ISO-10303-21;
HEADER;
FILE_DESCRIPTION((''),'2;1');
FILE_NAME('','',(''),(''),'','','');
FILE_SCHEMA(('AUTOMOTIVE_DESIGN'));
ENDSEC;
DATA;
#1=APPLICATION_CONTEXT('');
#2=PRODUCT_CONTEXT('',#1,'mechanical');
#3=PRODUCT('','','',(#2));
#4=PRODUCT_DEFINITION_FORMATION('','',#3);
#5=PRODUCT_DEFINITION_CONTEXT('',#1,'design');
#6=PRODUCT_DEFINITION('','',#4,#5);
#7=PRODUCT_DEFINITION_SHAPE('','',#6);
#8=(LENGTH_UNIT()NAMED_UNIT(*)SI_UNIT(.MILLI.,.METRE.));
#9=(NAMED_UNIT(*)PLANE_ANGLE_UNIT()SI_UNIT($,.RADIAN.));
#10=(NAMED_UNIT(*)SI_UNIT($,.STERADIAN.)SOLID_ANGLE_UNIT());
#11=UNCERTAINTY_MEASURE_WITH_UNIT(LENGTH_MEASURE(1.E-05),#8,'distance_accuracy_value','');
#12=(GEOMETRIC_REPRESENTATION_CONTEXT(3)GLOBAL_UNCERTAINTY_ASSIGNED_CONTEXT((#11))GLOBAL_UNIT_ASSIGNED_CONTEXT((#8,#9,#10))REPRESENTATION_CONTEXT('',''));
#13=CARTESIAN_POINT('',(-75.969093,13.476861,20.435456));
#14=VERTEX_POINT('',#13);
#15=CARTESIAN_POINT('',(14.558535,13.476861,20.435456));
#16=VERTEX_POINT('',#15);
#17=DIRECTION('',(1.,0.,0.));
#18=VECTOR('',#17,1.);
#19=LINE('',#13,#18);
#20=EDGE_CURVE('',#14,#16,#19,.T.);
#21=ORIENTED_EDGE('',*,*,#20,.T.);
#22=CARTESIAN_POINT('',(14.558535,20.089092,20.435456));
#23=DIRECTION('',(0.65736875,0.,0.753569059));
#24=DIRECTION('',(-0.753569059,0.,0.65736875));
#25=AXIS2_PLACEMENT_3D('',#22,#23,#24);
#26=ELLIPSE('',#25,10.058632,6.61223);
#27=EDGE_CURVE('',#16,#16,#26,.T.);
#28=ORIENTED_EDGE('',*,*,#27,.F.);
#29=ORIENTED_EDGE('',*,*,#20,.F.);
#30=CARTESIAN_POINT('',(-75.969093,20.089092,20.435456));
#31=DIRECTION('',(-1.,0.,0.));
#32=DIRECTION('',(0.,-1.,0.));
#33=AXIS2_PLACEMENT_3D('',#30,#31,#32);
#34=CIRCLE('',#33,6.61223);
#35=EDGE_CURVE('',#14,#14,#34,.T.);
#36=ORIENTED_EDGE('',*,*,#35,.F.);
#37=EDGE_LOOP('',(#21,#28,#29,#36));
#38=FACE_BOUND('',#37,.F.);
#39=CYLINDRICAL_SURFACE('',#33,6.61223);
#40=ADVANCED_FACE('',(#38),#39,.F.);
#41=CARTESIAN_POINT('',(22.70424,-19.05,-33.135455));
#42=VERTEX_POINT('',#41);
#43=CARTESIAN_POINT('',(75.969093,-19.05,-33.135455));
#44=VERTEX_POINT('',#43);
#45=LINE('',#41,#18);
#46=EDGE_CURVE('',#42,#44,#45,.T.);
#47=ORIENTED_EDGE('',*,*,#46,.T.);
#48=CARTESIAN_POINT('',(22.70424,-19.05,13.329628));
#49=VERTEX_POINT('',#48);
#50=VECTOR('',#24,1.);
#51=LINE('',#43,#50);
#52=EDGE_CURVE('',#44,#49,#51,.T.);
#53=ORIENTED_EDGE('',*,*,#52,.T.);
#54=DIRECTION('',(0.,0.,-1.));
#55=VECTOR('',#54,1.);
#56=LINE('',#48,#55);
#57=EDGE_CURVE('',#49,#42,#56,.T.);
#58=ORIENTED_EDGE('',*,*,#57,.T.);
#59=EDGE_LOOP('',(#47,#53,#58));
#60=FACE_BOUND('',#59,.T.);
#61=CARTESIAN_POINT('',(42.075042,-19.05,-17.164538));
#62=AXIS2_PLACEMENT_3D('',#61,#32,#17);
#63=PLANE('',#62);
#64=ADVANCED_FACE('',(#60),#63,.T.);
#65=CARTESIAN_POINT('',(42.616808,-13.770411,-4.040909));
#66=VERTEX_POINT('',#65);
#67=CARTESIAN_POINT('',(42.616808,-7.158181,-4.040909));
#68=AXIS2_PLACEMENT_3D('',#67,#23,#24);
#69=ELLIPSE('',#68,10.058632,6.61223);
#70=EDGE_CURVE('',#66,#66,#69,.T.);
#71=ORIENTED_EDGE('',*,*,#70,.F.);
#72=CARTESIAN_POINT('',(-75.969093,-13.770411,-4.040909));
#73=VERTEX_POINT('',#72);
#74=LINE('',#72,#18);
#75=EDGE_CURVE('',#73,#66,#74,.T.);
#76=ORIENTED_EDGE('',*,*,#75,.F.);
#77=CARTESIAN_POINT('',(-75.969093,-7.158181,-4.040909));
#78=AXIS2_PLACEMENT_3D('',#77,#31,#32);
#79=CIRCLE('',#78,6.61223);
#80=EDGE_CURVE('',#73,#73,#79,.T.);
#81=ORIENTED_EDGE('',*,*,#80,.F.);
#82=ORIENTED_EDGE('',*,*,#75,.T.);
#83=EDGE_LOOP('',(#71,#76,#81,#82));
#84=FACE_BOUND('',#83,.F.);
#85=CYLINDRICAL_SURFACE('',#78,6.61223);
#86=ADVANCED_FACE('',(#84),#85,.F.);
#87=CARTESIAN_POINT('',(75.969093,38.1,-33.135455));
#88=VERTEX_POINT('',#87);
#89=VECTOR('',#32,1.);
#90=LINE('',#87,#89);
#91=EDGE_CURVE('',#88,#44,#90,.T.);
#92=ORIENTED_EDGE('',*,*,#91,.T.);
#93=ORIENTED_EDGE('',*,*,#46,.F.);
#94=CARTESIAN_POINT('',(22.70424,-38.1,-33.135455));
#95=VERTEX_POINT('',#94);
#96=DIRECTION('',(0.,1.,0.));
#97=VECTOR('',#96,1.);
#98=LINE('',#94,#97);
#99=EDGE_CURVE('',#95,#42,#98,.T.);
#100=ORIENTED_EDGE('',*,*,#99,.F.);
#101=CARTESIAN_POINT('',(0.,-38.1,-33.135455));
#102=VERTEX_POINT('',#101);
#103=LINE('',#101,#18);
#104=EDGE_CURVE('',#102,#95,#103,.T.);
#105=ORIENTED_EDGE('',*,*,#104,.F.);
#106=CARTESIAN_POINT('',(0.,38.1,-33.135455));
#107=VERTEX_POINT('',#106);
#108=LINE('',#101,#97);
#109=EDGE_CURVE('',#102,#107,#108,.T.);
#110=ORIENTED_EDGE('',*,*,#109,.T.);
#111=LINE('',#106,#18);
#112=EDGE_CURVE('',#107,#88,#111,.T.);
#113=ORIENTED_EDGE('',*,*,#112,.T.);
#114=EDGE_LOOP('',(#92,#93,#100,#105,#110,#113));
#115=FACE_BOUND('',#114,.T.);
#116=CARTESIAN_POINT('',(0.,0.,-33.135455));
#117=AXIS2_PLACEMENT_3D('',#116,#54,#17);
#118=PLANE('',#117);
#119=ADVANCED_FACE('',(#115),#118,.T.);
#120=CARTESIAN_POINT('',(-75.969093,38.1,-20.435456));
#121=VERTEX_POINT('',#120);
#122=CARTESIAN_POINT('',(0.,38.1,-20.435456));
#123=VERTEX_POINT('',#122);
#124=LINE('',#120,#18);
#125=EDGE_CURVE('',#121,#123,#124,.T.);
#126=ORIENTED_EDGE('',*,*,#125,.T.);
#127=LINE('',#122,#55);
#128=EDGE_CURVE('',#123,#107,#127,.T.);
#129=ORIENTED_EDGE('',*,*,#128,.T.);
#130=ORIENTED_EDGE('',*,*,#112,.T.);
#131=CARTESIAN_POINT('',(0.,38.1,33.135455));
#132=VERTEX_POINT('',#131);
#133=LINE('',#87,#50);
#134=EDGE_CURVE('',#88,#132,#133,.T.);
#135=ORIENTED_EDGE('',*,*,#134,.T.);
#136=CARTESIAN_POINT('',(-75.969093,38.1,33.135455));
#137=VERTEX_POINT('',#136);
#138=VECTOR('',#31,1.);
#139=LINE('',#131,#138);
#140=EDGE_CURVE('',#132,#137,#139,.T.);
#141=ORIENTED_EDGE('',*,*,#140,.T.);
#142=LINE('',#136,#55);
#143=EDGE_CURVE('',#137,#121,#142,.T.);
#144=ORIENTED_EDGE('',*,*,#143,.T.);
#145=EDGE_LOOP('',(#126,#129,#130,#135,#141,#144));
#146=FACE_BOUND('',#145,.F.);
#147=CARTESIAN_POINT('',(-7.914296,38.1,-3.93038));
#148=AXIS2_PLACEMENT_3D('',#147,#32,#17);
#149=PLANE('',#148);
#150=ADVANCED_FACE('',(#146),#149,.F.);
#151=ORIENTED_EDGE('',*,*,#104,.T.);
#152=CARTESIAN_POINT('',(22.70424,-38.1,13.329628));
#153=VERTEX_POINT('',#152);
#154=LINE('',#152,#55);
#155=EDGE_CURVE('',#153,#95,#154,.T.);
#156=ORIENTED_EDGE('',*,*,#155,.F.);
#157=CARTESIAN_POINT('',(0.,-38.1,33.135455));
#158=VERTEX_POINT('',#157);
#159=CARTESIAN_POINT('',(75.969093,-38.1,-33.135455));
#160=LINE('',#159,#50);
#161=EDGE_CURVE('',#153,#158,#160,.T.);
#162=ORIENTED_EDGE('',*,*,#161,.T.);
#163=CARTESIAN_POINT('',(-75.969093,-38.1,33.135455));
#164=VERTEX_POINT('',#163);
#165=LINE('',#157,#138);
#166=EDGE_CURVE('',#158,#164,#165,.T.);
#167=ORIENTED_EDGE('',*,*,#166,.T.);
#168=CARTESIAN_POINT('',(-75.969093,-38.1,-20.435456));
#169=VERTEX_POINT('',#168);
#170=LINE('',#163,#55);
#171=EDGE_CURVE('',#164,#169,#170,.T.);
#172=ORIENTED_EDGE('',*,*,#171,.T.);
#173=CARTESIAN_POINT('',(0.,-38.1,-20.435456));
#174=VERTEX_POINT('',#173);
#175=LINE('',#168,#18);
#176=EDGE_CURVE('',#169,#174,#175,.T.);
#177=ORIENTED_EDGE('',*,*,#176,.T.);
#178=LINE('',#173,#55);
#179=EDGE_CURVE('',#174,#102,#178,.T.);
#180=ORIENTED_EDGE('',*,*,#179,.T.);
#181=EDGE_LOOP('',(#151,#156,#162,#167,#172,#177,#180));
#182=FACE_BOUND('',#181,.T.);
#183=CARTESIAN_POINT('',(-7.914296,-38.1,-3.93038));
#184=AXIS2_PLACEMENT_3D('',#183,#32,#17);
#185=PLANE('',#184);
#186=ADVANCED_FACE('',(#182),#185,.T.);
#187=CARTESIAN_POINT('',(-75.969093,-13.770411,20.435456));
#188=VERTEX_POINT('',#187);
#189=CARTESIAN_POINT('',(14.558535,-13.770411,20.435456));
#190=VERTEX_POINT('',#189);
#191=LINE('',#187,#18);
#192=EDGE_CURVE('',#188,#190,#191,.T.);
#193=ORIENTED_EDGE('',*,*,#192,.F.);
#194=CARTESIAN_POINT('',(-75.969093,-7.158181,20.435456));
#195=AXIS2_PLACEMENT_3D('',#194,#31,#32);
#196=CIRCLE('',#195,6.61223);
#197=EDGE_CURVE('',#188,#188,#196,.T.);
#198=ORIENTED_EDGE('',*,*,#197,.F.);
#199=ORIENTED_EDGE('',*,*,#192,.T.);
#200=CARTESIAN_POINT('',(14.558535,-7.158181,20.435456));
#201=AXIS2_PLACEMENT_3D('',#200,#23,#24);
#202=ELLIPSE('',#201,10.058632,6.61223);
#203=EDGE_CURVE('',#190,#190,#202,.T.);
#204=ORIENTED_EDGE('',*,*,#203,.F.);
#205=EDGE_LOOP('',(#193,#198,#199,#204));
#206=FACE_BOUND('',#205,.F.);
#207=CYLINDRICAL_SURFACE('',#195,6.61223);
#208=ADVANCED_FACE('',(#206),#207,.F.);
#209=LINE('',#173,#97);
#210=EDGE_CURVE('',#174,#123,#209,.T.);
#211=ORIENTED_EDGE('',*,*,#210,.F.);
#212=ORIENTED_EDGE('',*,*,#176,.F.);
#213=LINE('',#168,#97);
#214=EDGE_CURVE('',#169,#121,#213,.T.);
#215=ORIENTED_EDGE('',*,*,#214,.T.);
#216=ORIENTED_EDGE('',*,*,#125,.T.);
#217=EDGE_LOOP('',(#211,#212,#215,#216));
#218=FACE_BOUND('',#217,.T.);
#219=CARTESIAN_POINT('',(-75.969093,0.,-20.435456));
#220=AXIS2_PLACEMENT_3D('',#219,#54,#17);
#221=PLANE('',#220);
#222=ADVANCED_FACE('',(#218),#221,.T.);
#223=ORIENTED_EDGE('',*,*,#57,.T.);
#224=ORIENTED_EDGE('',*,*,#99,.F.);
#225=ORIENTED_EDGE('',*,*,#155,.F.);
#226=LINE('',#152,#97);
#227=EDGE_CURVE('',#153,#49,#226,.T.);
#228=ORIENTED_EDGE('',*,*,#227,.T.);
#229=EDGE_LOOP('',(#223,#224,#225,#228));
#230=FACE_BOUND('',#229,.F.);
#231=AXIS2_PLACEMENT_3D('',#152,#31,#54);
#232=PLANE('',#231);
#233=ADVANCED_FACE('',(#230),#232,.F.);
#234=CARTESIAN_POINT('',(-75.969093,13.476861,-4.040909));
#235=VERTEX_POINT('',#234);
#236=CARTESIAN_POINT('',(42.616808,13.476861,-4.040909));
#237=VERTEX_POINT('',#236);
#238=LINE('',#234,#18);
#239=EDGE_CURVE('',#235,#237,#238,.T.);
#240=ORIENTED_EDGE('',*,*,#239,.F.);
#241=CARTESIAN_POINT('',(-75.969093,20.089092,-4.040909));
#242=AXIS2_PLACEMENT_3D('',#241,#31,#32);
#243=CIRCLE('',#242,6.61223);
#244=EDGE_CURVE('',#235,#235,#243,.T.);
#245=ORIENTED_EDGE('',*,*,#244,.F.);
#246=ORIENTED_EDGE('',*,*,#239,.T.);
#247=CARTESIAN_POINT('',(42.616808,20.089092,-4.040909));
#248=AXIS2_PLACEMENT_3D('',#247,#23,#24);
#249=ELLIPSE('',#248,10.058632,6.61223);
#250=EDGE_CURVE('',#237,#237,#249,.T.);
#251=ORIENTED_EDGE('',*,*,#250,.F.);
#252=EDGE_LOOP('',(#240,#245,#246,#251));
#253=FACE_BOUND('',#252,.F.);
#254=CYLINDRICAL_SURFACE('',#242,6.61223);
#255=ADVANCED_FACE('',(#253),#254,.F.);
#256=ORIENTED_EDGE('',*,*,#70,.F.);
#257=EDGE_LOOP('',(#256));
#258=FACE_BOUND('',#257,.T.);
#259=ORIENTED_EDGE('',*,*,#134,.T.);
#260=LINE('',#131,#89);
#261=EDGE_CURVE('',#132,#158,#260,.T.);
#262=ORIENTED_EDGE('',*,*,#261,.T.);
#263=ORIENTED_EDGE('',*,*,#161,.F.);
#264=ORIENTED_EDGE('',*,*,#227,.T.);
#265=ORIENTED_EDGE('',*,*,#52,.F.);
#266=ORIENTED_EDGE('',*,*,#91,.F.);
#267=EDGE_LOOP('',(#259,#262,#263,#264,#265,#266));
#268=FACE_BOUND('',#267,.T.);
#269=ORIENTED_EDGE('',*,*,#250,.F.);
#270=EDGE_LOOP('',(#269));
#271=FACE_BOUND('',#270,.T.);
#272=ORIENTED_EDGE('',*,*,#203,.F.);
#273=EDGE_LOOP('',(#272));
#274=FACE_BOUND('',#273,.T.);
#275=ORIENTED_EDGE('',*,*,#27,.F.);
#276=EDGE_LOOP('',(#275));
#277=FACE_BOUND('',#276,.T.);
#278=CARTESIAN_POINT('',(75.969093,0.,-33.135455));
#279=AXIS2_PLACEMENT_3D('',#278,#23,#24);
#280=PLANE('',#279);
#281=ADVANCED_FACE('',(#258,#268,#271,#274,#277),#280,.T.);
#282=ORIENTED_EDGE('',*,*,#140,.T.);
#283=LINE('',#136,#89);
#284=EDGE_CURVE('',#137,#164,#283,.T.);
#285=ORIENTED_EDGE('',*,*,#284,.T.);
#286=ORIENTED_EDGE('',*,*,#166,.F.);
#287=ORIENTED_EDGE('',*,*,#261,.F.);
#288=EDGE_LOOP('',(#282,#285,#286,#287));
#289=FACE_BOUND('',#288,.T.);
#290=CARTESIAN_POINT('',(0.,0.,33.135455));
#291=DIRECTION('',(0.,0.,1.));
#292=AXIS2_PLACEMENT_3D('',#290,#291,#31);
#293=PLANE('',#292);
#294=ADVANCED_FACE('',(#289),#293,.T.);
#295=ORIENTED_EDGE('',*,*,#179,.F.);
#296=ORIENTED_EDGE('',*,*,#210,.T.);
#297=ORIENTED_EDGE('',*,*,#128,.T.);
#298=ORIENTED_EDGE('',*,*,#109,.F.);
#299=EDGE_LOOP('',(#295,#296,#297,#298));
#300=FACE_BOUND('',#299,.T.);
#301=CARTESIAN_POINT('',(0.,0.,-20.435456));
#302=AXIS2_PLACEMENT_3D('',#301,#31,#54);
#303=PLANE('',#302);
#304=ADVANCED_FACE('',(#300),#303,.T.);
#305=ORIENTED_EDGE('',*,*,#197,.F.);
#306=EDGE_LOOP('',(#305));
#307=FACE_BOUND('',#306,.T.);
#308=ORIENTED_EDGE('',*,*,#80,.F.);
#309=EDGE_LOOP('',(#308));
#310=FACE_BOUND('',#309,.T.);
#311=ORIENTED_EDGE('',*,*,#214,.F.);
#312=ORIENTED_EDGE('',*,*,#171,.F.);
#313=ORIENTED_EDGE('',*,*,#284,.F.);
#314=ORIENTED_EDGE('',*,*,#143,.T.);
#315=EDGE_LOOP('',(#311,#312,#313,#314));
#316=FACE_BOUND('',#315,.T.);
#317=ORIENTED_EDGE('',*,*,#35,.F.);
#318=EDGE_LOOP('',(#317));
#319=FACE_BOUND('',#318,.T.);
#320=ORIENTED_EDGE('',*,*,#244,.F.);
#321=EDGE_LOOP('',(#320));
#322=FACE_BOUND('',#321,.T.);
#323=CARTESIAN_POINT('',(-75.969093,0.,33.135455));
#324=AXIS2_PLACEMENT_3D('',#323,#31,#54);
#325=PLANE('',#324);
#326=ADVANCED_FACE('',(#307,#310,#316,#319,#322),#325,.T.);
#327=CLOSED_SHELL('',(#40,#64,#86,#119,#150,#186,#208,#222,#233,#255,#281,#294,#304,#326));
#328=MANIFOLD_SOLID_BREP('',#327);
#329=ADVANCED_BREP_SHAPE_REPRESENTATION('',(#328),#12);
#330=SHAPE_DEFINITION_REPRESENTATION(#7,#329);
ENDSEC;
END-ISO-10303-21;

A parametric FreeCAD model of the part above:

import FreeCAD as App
import Part
import Sketcher
from FreeCAD import Vector
Q = App.Units.Quantity


def add_polygon(sketch, points):
    """Adds a closed chain of lines whose ends are joined by coincident constraints."""
    first, n = sketch.GeometryCount, len(points)
    for a, b in zip(points, points[1:] + points[:1]):
        sketch.addGeometry(Part.LineSegment(App.Vector(*a, 0), App.Vector(*b, 0)), False)
    for i in range(n):
        sketch.addConstraint(Sketcher.Constraint("Coincident", first + i, 2, first + (i + 1) % n, 1))

doc = App.newDocument("Part")
body = doc.addObject("PartDesign::Body", "Body")

# Sketch on XZ plane
sketch1 = body.newObject("Sketcher::SketchObject", "Sketch")
sketch1.AttachmentSupport = (doc.getObject("XZ_Plane"), [""])
sketch1.MapMode = "FlatFace"
add_polygon(sketch1, [(0, -33), (76, -33), (0, 33), (-76, 33), (-76, -20), (0, -20)])  # lines 0-5
sketch1.addConstraint([
    Sketcher.Constraint("Horizontal", 0),
    Sketcher.Constraint("Horizontal", 2),
    Sketcher.Constraint("Vertical", 3),
    Sketcher.Constraint("Horizontal", 4),
    Sketcher.Constraint("Vertical", 5),
    Sketcher.Constraint("Symmetric", 0, 2, 2, 2, -1, 1),
    Sketcher.Constraint("PointOnObject", 1, 2, -2),
    Sketcher.Constraint("PointOnObject", 4, 2, -2),
    Sketcher.Constraint("DistanceY", 5, 2, 5, 1, Q("0.5 in")),
    Sketcher.Constraint("DistanceY", 3, 2, 3, 1, 53.570911),
    Sketcher.Constraint("DistanceX", 0, 1, 0, 2, 75.969093),
])
pad1 = body.newObject("PartDesign::Pad", "Pad")
pad1.Profile = sketch1
pad1.Length = Q("3 in")
pad1.Midplane = True

# Sketch on XZ plane
sketch2 = body.newObject("Sketcher::SketchObject", "Sketch001")
sketch2.AttachmentSupport = (doc.getObject("XZ_Plane"), [""])
sketch2.MapMode = "FlatFace"
sketch2.AttachmentOffset = App.Placement(Vector(0, 0, 1.5 * 25.4), App.Rotation())
add_polygon(sketch2, [(23, -33), (76, -33), (23, 13)])  # lines 0-2
sketch2.addConstraint([
    Sketcher.Constraint("Horizontal", 0),
    Sketcher.Constraint("Vertical", 2),
    Sketcher.Constraint("Distance", 1, 70.683438),
    Sketcher.Constraint("DistanceX", 0, 1, 0, 2, 53.264852),
    Sketcher.Constraint("DistanceX", -1, 1, 1, 2, 22.70424),
    Sketcher.Constraint("DistanceY", -1, 1, 1, 2, 13.329628),
])
pocket1 = body.newObject("PartDesign::Pocket", "Pocket")
pocket1.Profile = sketch2
pocket1.Length = Q("0.75 in")

# Sketch on YZ plane
sketch3 = body.newObject("Sketcher::SketchObject", "Sketch002")
sketch3.AttachmentSupport = (doc.getObject("YZ_Plane"), [""])
sketch3.MapMode = "FlatFace"
sketch3.AttachmentOffset = App.Placement(Vector(0, 0, -75.969093), App.Rotation())
sketch3.addGeometry([
    Part.Circle(Vector(-7, 20, 0), Vector(0, 0, 1), 7),
    Part.Circle(Vector(20, -4, 0), Vector(0, 0, 1), 7),
    Part.Circle(Vector(-7, -4, 0), Vector(0, 0, 1), 7),
    Part.Circle(Vector(20, 20, 0), Vector(0, 0, 1), 7),
], False)
sketch3.addConstraint([
    Sketcher.Constraint("Equal", 0, 1),
    Sketcher.Constraint("Equal", 1, 2),
    Sketcher.Constraint("Equal", 2, 3),
    Sketcher.Constraint("Horizontal", 1, 3, 2, 3),
    Sketcher.Constraint("Horizontal", 0, 3, 3, 3),
    Sketcher.Constraint("Vertical", 0, 3, 2, 3),
    Sketcher.Constraint("Vertical", 1, 3, 3, 3),
    Sketcher.Constraint("Diameter", 0, 13.224461),
    Sketcher.Constraint("DistanceX", 0, 3, -1, 1, 7.158181),
    Sketcher.Constraint("DistanceX", -1, 1, 1, 3, 20.089092),
    Sketcher.Constraint("DistanceY", 1, 3, -1, 1, 4.040909),
    Sketcher.Constraint("DistanceY", -1, 1, 0, 3, 20.435456),
])
pocket2 = body.newObject("PartDesign::Pocket", "Pocket001")
pocket2.Profile = sketch3
pocket2.Length = Q("10 in")
pocket2.Reversed = True

doc.recompute()
